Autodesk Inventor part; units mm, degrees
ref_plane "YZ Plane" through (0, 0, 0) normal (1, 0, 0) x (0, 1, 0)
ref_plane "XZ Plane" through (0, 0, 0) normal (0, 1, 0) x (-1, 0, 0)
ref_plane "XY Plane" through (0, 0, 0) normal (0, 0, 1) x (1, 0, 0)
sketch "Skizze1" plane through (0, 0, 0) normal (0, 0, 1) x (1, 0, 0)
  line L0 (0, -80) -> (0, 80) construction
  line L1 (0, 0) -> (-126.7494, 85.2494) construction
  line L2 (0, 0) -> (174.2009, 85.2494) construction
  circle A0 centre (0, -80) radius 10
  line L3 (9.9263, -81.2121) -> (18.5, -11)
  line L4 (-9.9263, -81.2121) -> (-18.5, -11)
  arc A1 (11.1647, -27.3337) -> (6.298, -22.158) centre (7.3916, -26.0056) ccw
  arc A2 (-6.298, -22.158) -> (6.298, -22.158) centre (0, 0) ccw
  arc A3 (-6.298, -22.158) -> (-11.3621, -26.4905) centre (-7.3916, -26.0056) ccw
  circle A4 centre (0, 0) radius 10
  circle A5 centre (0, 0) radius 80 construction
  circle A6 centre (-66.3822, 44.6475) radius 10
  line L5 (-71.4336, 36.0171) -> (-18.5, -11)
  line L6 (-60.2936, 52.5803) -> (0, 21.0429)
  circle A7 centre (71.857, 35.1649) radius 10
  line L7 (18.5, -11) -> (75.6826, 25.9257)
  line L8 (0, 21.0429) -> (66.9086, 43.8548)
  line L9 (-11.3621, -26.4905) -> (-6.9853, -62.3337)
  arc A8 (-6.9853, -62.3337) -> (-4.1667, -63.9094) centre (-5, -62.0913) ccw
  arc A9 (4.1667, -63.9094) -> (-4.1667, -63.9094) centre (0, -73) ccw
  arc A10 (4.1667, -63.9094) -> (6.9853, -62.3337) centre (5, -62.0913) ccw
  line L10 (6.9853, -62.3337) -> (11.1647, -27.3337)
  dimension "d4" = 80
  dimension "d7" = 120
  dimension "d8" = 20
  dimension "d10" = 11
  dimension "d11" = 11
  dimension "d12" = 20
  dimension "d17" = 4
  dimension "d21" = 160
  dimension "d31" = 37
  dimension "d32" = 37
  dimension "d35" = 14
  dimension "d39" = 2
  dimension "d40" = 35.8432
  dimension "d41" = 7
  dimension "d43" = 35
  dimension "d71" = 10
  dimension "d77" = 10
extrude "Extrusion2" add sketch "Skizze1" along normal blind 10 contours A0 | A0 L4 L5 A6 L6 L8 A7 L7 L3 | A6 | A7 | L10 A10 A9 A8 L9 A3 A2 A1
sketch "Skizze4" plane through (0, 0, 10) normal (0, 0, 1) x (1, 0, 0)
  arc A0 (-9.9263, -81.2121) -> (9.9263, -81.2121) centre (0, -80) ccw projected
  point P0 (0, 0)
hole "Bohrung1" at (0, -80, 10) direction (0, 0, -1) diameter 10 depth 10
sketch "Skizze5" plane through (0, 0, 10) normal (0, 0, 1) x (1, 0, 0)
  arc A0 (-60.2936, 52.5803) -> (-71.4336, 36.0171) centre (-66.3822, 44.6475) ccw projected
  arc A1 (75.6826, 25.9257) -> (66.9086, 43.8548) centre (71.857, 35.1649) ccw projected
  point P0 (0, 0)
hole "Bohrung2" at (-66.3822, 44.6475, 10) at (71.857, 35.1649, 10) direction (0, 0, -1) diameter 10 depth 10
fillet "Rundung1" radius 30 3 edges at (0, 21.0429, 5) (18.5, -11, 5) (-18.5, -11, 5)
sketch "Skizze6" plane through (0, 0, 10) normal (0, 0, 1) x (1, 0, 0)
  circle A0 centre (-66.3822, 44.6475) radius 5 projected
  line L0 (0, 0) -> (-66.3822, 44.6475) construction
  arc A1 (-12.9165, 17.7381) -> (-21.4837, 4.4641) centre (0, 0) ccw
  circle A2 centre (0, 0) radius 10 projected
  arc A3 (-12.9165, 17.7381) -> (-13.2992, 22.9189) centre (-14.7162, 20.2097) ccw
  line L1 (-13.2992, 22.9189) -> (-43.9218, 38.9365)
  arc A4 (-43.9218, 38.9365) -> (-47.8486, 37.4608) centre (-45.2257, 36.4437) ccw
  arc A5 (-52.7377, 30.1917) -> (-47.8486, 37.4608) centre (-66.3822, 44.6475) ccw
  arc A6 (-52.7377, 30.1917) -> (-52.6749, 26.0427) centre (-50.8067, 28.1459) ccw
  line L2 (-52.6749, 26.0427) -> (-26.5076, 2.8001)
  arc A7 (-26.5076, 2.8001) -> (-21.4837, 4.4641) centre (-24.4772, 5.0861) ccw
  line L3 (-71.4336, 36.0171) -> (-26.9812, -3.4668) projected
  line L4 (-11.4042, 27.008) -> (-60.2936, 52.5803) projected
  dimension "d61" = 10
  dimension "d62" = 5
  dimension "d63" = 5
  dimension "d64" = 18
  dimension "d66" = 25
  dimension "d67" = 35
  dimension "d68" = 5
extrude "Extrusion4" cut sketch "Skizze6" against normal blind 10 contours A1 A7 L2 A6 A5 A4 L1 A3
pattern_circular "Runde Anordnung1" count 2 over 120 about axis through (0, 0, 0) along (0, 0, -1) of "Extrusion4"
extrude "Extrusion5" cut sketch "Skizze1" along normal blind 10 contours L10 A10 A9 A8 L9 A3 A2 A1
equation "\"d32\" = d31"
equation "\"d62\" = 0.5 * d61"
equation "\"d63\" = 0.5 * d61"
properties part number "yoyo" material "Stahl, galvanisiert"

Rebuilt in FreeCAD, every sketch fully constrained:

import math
import FreeCAD as App
import Part
import Sketcher
from FreeCAD import Vector
Q = App.Units.Quantity


def edges_at(feature, points):
    """Names of the edges that pass closest to the given points."""
    edges = feature.Shape.Edges
    near = lambda p: min(range(len(edges)), key=lambda i: edges[i].distToShape(Part.Vertex(*p))[0])
    return sorted({f"Edge{near(p) + 1}" for p in points})

doc = App.newDocument("Part")
body = doc.addObject("PartDesign::Body", "Body")

sketch1 = body.newObject("Sketcher::SketchObject", "Sketch")
sketch1.AttachmentSupport = (doc.getObject("XY_Plane"), [""])
sketch1.MapMode = "FlatFace"
sketch1.addGeometry(Part.ArcOfCircle(Part.Circle(Vector(0, -80, 0), Vector(0, 0, 1), 10), math.radians(-173), math.radians(-7)), False)
sketch1.addGeometry(Part.LineSegment(Vector(10, -81, 0), Vector(18, -11, 0)), False)
sketch1.addGeometry(Part.LineSegment(Vector(18, -11, 0), Vector(76, 26, 0)), False)
sketch1.addGeometry(Part.ArcOfCircle(Part.Circle(Vector(72, 35, 0), Vector(0, 0, 1), 10), math.radians(-68), math.radians(120)), False)
sketch1.addGeometry(Part.LineSegment(Vector(67, 44, 0), Vector(0, 21, 0)), False)
sketch1.addGeometry(Part.LineSegment(Vector(0, 21, 0), Vector(-60, 53, 0)), False)
sketch1.addGeometry(Part.ArcOfCircle(Part.Circle(Vector(-66, 45, 0), Vector(0, 0, 1), 10), math.radians(52), math.radians(240)), False)
sketch1.addGeometry(Part.LineSegment(Vector(-71, 36, 0), Vector(-18, -11, 0)), False)
sketch1.addGeometry(Part.LineSegment(Vector(-18, -11, 0), Vector(-10, -81, 0)), False)
sketch1.addGeometry(Part.Circle(Vector(0, 0, 0), Vector(0, 0, 1), 10), False)
sketch1.addConstraint(Sketcher.Constraint("Tangent", 0, 2, 1, 1))
sketch1.addConstraint(Sketcher.Constraint("Coincident", 1, 2, 2, 1))
sketch1.addConstraint(Sketcher.Constraint("Coincident", 2, 2, 3, 1))
sketch1.addConstraint(Sketcher.Constraint("Coincident", 3, 2, 4, 1))
sketch1.addConstraint(Sketcher.Constraint("Coincident", 4, 2, 5, 1))
sketch1.addConstraint(Sketcher.Constraint("Coincident", 5, 2, 6, 1))
sketch1.addConstraint(Sketcher.Constraint("Coincident", 6, 2, 7, 1))
sketch1.addConstraint(Sketcher.Constraint("Coincident", 7, 2, 8, 1))
sketch1.addConstraint(Sketcher.Constraint("Tangent", 8, 2, 0, 1))
sketch1.addConstraint(Sketcher.Constraint("Coincident", 9, 3, -1, 1))
sketch1.addConstraint(Sketcher.Constraint("Equal", 0, 3))
sketch1.addConstraint(Sketcher.Constraint("Equal", 3, 6))
sketch1.addConstraint(Sketcher.Constraint("Equal", 6, 9))
sketch1.addConstraint(Sketcher.Constraint("Symmetric", 1, 2, 7, 2, -2))
sketch1.addConstraint(Sketcher.Constraint("PointOnObject", 0, 3, -2))
sketch1.addConstraint(Sketcher.Constraint("PointOnObject", 4, 2, -2))
sketch1.addConstraint(Sketcher.Constraint("Diameter", 9, 20.0))
sketch1.addConstraint(Sketcher.Constraint("DistanceY", 0, 3, -1, 1, 80.0))
sketch1.addConstraint(Sketcher.Constraint("DistanceY", 1, 2, -1, 1, 11.0))
sketch1.addConstraint(Sketcher.Constraint("DistanceX", 7, 2, 1, 2, 37.0))
sketch1.addConstraint(Sketcher.Constraint("DistanceX", 6, 2, 5, 2, 11.14))
sketch1.addConstraint(Sketcher.Constraint("DistanceX", -1, 1, 3, 3, 71.857))
sketch1.addConstraint(Sketcher.Constraint("DistanceY", -1, 1, 3, 3, 35.165))
sketch1.addConstraint(Sketcher.Constraint("DistanceY", -1, 1, 4, 2, 21.043))
sketch1.addConstraint(Sketcher.Constraint("DistanceY", -1, 1, 6, 2, 36.017))
sketch1.addConstraint(Sketcher.Constraint("DistanceX", 3, 2, 2, 2, 8.774))
sketch1.addConstraint(Sketcher.Constraint("DistanceY", 2, 2, 3, 2, 17.929))
sketch1.addConstraint(Sketcher.Constraint("Distance", 5, 68.0436))
sketch1.addConstraint(Sketcher.Constraint("Distance", 7, 70.7995))
pad1 = body.newObject("PartDesign::Pad", "Pad")
pad1.Profile = sketch1
pad1.Length = 10

sketch2 = body.newObject("Sketcher::SketchObject", "Sketch001")
sketch2.AttachmentSupport = (doc.getObject("XY_Plane"), [""])
sketch2.MapMode = "FlatFace"
sketch2.AttachmentOffset = App.Placement(Vector(0, 0, 10), App.Rotation())
sketch2.addGeometry(Part.Circle(Vector(0, -80, 0), Vector(0, 0, 1), 5), False)
sketch2.addConstraint(Sketcher.Constraint("PointOnObject", 0, 3, -2))
sketch2.addConstraint(Sketcher.Constraint("Diameter", 0, 10.0))
sketch2.addConstraint(Sketcher.Constraint("DistanceY", 0, 3, -1, 1, 80.0))
doc.recompute()
hole = body.newObject("PartDesign::Hole", "Hole")
hole.Profile = sketch2
hole.ThreadType = "None"
hole.Diameter = 10
hole.DepthType = "Dimension"
hole.Depth = 10
hole.DrillPoint = "Flat"

sketch3 = body.newObject("Sketcher::SketchObject", "Sketch002")
sketch3.AttachmentSupport = (doc.getObject("XY_Plane"), [""])
sketch3.MapMode = "FlatFace"
sketch3.AttachmentOffset = App.Placement(Vector(0, 0, 10), App.Rotation())
sketch3.addGeometry(Part.Circle(Vector(-66, 45, 0), Vector(0, 0, 1), 5), False)
sketch3.addGeometry(Part.Circle(Vector(72, 35, 0), Vector(0, 0, 1), 5), False)
sketch3.addConstraint(Sketcher.Constraint("Equal", 0, 1))
sketch3.addConstraint(Sketcher.Constraint("Diameter", 0, 10.0))
sketch3.addConstraint(Sketcher.Constraint("DistanceX", -1, 1, 1, 3, 71.857))
sketch3.addConstraint(Sketcher.Constraint("DistanceY", -1, 1, 1, 3, 35.165))
sketch3.addConstraint(Sketcher.Constraint("DistanceX", 0, 3, -1, 1, 66.3822))
sketch3.addConstraint(Sketcher.Constraint("DistanceY", -1, 1, 0, 3, 44.6475))
doc.recompute()
hole2 = body.newObject("PartDesign::Hole", "Hole001")
hole2.Profile = sketch3
hole2.ThreadType = "None"
hole2.Diameter = 10
hole2.DepthType = "Dimension"
hole2.Depth = 10
hole2.DrillPoint = "Flat"
doc.recompute()

fillet = body.newObject("PartDesign::Fillet", "Fillet")
fillet.Base = (hole2, edges_at(hole2, [(0, 21.043, 5), (18.5, -11, 5), (-18.5, -11, 5)]))
fillet.Radius = 30

sketch4 = body.newObject("Sketcher::SketchObject", "Sketch003")
sketch4.AttachmentSupport = (doc.getObject("XY_Plane"), [""])
sketch4.MapMode = "FlatFace"
sketch4.AttachmentOffset = App.Placement(Vector(0, 0, 10), App.Rotation())
sketch4.addGeometry(Part.ArcOfCircle(Part.Circle(Vector(0, 0, 0), Vector(0, 0, 1), 21.942565), math.radians(126.061296), math.radians(168.261545)), False)
sketch4.addGeometry(Part.ArcOfCircle(Part.Circle(Vector(-14.7162, 20.2097, 0), Vector(0, 0, 1), 3.057405), math.radians(-53.939697), math.radians(62.388965)), False)
sketch4.addGeometry(Part.LineSegment(Vector(-13.2992, 22.9189, 0), Vector(-43.9218, 38.9365, 0)), False)
sketch4.addGeometry(Part.ArcOfCircle(Part.Circle(Vector(-45.2257, 36.4437, 0), Vector(0, 0, 1), 2.81322), math.radians(62.387444), math.radians(158.804858)), False)
sketch4.addGeometry(Part.ArcOfCircle(Part.Circle(Vector(-66.3822, 44.6475, 0), Vector(0, 0, 1), 19.878192), math.radians(-46.65376), math.radians(-21.194599)), False)
sketch4.addGeometry(Part.ArcOfCircle(Part.Circle(Vector(-50.8067, 28.1459, 0), Vector(0, 0, 1), 2.813194), math.radians(133.346477), math.radians(228.386419)), False)
sketch4.addGeometry(Part.LineSegment(Vector(-52.6749, 26.0427, 0), Vector(-26.5076, 2.8001, 0)), False)
sketch4.addGeometry(Part.ArcOfCircle(Part.Circle(Vector(-24.4772, 5.0861, 0), Vector(0, 0, 1), 3.057502), math.radians(-131.61113), math.radians(-11.738095)), False)
sketch4.addConstraint(Sketcher.Constraint("Coincident", 0, 1, 1, 1))
sketch4.addConstraint(Sketcher.Constraint("Coincident", 1, 2, 2, 1))
sketch4.addConstraint(Sketcher.Constraint("Coincident", 2, 2, 3, 1))
sketch4.addConstraint(Sketcher.Constraint("Coincident", 3, 2, 4, 2))
sketch4.addConstraint(Sketcher.Constraint("Coincident", 4, 1, 5, 1))
sketch4.addConstraint(Sketcher.Constraint("Coincident", 5, 2, 6, 1))
sketch4.addConstraint(Sketcher.Constraint("Coincident", 6, 2, 7, 1))
sketch4.addConstraint(Sketcher.Constraint("Coincident", 7, 2, 0, 2))
sketch4.addConstraint(Sketcher.Constraint("Coincident", 0, 3, -1, 1))
sketch4.addConstraint(Sketcher.Constraint("DistanceY", -1, 1, 6, 2, 2.8))
sketch4.addConstraint(Sketcher.Constraint("Radius", 0, 21.9426))
sketch4.addConstraint(Sketcher.Constraint("Radius", 1, 3.0574))
sketch4.addConstraint(Sketcher.Constraint("Radius", 3, 2.8132))
sketch4.addConstraint(Sketcher.Constraint("Radius", 4, 19.8782))
sketch4.addConstraint(Sketcher.Constraint("Radius", 5, 2.8132))
sketch4.addConstraint(Sketcher.Constraint("Radius", 7, 3.0575))
sketch4.addConstraint(Sketcher.Constraint("DistanceY", -1, 1, 5, 3, 28.146))
sketch4.addConstraint(Sketcher.Constraint("DistanceY", -1, 1, 7, 3, 5.086))
sketch4.addConstraint(Sketcher.Constraint("DistanceY", -1, 1, 0, 1, 17.738))
sketch4.addConstraint(Sketcher.Constraint("DistanceY", -1, 1, 1, 2, 22.919))
sketch4.addConstraint(Sketcher.Constraint("DistanceX", 5, 2, -1, 1, 52.675))
sketch4.addConstraint(Sketcher.Constraint("DistanceY", -1, 1, 7, 2, 4.464))
sketch4.addConstraint(Sketcher.Constraint("DistanceY", 1, 3, 3, 3, 16.234))
sketch4.addConstraint(Sketcher.Constraint("DistanceX", 4, 3, 1, 3, 51.666))
sketch4.addConstraint(Sketcher.Constraint("DistanceX", 5, 3, 3, 3, 5.581))
sketch4.addConstraint(Sketcher.Constraint("DistanceX", 7, 3, 1, 3, 9.761))
sketch4.addConstraint(Sketcher.Constraint("DistanceX", 3, 3, 2, 2, 1.304))
sketch4.addConstraint(Sketcher.Constraint("DistanceX", 3, 2, 3, 3, 2.623))
sketch4.addConstraint(Sketcher.Constraint("DistanceX", 4, 1, 5, 3, 1.931))
pocket1 = body.newObject("PartDesign::Pocket", "Pocket")
pocket1.Profile = sketch4
pocket1.Length = 10
doc.recompute()

polarpattern = body.newObject("PartDesign::PolarPattern", "PolarPattern")
polarpattern.Originals = [pocket1]
polarpattern.Axis = (doc.getObject("Z_Axis"), [""])
polarpattern.Angle = 120
polarpattern.Occurrences = 2
polarpattern.Reversed = True
body.Tip = polarpattern

sketch5 = body.newObject("Sketcher::SketchObject", "Sketch004")
sketch5.AttachmentSupport = (doc.getObject("XY_Plane"), [""])
sketch5.MapMode = "FlatFace"
sketch5.addGeometry(Part.LineSegment(Vector(7, -62.3, 0), Vector(11.2, -27.3, 0)), False)
sketch5.addGeometry(Part.ArcOfCircle(Part.Circle(Vector(7.4, -26, 0), Vector(0, 0, 1), 4), math.radians(-19), math.radians(106)), False)
sketch5.addGeometry(Part.ArcOfCircle(Part.Circle(Vector(0, 0, 0), Vector(0, 0, 1), 23), math.radians(-106), math.radians(-74)), False)
sketch5.addGeometry(Part.ArcOfCircle(Part.Circle(Vector(-7.4, -26, 0), Vector(0, 0, 1), 4), math.radians(74), math.radians(187)), False)
sketch5.addGeometry(Part.LineSegment(Vector(-11.4, -26.5, 0), Vector(-7, -62.3, 0)), False)
sketch5.addGeometry(Part.ArcOfCircle(Part.Circle(Vector(-5, -62.1, 0), Vector(0, 0, 1), 2), math.radians(-173), math.radians(-65)), False)
sketch5.addGeometry(Part.ArcOfCircle(Part.Circle(Vector(0, -73, 0), Vector(0, 0, 1), 10), math.radians(65), math.radians(115)), False)
sketch5.addGeometry(Part.ArcOfCircle(Part.Circle(Vector(5, -62.1, 0), Vector(0, 0, 1), 2), math.radians(-115), math.radians(-7)), False)
sketch5.addConstraint(Sketcher.Constraint("Coincident", 0, 2, 1, 1))
sketch5.addConstraint(Sketcher.Constraint("Tangent", 1, 2, 2, 2))
sketch5.addConstraint(Sketcher.Constraint("Tangent", 2, 1, 3, 1))
sketch5.addConstraint(Sketcher.Constraint("Tangent", 3, 2, 4, 1))
sketch5.addConstraint(Sketcher.Constraint("Tangent", 4, 2, 5, 1))
sketch5.addConstraint(Sketcher.Constraint("Tangent", 5, 2, 6, 2))
sketch5.addConstraint(Sketcher.Constraint("Tangent", 6, 1, 7, 1))
sketch5.addConstraint(Sketcher.Constraint("Coincident", 7, 2, 0, 1))
sketch5.addConstraint(Sketcher.Constraint("Coincident", 2, 3, -1, 1))
sketch5.addConstraint(Sketcher.Constraint("Equal", 1, 3))
sketch5.addConstraint(Sketcher.Constraint("Equal", 5, 7))
sketch5.addConstraint(Sketcher.Constraint("Symmetric", 5, 3, 7, 3, -2))
sketch5.addConstraint(Sketcher.Constraint("Horizontal", 1, 3, 3, 3))
sketch5.addConstraint(Sketcher.Constraint("Horizontal", 4, 2, 7, 2))
sketch5.addConstraint(Sketcher.Constraint("Radius", 1, 4.0))
sketch5.addConstraint(Sketcher.Constraint("Radius", 5, 2.0))
sketch5.addConstraint(Sketcher.Constraint("Radius", 6, 10.0))
sketch5.addConstraint(Sketcher.Constraint("DistanceX", 5, 3, 7, 3, 10.0))
sketch5.addConstraint(Sketcher.Constraint("DistanceY", 6, 3, -1, 1, 73.0))
sketch5.addConstraint(Sketcher.Constraint("Angle", 0, Q("83.1905 deg")))
sketch5.addConstraint(Sketcher.Constraint("Radius", 2, 23.0357))
sketch5.addConstraint(Sketcher.Constraint("DistanceY", 4, 2, 3, 2, 35.8432))
pocket2 = body.newObject("PartDesign::Pocket", "Pocket001")
pocket2.Profile = sketch5
pocket2.Length = 10
pocket2.Reversed = True

doc.recompute()
